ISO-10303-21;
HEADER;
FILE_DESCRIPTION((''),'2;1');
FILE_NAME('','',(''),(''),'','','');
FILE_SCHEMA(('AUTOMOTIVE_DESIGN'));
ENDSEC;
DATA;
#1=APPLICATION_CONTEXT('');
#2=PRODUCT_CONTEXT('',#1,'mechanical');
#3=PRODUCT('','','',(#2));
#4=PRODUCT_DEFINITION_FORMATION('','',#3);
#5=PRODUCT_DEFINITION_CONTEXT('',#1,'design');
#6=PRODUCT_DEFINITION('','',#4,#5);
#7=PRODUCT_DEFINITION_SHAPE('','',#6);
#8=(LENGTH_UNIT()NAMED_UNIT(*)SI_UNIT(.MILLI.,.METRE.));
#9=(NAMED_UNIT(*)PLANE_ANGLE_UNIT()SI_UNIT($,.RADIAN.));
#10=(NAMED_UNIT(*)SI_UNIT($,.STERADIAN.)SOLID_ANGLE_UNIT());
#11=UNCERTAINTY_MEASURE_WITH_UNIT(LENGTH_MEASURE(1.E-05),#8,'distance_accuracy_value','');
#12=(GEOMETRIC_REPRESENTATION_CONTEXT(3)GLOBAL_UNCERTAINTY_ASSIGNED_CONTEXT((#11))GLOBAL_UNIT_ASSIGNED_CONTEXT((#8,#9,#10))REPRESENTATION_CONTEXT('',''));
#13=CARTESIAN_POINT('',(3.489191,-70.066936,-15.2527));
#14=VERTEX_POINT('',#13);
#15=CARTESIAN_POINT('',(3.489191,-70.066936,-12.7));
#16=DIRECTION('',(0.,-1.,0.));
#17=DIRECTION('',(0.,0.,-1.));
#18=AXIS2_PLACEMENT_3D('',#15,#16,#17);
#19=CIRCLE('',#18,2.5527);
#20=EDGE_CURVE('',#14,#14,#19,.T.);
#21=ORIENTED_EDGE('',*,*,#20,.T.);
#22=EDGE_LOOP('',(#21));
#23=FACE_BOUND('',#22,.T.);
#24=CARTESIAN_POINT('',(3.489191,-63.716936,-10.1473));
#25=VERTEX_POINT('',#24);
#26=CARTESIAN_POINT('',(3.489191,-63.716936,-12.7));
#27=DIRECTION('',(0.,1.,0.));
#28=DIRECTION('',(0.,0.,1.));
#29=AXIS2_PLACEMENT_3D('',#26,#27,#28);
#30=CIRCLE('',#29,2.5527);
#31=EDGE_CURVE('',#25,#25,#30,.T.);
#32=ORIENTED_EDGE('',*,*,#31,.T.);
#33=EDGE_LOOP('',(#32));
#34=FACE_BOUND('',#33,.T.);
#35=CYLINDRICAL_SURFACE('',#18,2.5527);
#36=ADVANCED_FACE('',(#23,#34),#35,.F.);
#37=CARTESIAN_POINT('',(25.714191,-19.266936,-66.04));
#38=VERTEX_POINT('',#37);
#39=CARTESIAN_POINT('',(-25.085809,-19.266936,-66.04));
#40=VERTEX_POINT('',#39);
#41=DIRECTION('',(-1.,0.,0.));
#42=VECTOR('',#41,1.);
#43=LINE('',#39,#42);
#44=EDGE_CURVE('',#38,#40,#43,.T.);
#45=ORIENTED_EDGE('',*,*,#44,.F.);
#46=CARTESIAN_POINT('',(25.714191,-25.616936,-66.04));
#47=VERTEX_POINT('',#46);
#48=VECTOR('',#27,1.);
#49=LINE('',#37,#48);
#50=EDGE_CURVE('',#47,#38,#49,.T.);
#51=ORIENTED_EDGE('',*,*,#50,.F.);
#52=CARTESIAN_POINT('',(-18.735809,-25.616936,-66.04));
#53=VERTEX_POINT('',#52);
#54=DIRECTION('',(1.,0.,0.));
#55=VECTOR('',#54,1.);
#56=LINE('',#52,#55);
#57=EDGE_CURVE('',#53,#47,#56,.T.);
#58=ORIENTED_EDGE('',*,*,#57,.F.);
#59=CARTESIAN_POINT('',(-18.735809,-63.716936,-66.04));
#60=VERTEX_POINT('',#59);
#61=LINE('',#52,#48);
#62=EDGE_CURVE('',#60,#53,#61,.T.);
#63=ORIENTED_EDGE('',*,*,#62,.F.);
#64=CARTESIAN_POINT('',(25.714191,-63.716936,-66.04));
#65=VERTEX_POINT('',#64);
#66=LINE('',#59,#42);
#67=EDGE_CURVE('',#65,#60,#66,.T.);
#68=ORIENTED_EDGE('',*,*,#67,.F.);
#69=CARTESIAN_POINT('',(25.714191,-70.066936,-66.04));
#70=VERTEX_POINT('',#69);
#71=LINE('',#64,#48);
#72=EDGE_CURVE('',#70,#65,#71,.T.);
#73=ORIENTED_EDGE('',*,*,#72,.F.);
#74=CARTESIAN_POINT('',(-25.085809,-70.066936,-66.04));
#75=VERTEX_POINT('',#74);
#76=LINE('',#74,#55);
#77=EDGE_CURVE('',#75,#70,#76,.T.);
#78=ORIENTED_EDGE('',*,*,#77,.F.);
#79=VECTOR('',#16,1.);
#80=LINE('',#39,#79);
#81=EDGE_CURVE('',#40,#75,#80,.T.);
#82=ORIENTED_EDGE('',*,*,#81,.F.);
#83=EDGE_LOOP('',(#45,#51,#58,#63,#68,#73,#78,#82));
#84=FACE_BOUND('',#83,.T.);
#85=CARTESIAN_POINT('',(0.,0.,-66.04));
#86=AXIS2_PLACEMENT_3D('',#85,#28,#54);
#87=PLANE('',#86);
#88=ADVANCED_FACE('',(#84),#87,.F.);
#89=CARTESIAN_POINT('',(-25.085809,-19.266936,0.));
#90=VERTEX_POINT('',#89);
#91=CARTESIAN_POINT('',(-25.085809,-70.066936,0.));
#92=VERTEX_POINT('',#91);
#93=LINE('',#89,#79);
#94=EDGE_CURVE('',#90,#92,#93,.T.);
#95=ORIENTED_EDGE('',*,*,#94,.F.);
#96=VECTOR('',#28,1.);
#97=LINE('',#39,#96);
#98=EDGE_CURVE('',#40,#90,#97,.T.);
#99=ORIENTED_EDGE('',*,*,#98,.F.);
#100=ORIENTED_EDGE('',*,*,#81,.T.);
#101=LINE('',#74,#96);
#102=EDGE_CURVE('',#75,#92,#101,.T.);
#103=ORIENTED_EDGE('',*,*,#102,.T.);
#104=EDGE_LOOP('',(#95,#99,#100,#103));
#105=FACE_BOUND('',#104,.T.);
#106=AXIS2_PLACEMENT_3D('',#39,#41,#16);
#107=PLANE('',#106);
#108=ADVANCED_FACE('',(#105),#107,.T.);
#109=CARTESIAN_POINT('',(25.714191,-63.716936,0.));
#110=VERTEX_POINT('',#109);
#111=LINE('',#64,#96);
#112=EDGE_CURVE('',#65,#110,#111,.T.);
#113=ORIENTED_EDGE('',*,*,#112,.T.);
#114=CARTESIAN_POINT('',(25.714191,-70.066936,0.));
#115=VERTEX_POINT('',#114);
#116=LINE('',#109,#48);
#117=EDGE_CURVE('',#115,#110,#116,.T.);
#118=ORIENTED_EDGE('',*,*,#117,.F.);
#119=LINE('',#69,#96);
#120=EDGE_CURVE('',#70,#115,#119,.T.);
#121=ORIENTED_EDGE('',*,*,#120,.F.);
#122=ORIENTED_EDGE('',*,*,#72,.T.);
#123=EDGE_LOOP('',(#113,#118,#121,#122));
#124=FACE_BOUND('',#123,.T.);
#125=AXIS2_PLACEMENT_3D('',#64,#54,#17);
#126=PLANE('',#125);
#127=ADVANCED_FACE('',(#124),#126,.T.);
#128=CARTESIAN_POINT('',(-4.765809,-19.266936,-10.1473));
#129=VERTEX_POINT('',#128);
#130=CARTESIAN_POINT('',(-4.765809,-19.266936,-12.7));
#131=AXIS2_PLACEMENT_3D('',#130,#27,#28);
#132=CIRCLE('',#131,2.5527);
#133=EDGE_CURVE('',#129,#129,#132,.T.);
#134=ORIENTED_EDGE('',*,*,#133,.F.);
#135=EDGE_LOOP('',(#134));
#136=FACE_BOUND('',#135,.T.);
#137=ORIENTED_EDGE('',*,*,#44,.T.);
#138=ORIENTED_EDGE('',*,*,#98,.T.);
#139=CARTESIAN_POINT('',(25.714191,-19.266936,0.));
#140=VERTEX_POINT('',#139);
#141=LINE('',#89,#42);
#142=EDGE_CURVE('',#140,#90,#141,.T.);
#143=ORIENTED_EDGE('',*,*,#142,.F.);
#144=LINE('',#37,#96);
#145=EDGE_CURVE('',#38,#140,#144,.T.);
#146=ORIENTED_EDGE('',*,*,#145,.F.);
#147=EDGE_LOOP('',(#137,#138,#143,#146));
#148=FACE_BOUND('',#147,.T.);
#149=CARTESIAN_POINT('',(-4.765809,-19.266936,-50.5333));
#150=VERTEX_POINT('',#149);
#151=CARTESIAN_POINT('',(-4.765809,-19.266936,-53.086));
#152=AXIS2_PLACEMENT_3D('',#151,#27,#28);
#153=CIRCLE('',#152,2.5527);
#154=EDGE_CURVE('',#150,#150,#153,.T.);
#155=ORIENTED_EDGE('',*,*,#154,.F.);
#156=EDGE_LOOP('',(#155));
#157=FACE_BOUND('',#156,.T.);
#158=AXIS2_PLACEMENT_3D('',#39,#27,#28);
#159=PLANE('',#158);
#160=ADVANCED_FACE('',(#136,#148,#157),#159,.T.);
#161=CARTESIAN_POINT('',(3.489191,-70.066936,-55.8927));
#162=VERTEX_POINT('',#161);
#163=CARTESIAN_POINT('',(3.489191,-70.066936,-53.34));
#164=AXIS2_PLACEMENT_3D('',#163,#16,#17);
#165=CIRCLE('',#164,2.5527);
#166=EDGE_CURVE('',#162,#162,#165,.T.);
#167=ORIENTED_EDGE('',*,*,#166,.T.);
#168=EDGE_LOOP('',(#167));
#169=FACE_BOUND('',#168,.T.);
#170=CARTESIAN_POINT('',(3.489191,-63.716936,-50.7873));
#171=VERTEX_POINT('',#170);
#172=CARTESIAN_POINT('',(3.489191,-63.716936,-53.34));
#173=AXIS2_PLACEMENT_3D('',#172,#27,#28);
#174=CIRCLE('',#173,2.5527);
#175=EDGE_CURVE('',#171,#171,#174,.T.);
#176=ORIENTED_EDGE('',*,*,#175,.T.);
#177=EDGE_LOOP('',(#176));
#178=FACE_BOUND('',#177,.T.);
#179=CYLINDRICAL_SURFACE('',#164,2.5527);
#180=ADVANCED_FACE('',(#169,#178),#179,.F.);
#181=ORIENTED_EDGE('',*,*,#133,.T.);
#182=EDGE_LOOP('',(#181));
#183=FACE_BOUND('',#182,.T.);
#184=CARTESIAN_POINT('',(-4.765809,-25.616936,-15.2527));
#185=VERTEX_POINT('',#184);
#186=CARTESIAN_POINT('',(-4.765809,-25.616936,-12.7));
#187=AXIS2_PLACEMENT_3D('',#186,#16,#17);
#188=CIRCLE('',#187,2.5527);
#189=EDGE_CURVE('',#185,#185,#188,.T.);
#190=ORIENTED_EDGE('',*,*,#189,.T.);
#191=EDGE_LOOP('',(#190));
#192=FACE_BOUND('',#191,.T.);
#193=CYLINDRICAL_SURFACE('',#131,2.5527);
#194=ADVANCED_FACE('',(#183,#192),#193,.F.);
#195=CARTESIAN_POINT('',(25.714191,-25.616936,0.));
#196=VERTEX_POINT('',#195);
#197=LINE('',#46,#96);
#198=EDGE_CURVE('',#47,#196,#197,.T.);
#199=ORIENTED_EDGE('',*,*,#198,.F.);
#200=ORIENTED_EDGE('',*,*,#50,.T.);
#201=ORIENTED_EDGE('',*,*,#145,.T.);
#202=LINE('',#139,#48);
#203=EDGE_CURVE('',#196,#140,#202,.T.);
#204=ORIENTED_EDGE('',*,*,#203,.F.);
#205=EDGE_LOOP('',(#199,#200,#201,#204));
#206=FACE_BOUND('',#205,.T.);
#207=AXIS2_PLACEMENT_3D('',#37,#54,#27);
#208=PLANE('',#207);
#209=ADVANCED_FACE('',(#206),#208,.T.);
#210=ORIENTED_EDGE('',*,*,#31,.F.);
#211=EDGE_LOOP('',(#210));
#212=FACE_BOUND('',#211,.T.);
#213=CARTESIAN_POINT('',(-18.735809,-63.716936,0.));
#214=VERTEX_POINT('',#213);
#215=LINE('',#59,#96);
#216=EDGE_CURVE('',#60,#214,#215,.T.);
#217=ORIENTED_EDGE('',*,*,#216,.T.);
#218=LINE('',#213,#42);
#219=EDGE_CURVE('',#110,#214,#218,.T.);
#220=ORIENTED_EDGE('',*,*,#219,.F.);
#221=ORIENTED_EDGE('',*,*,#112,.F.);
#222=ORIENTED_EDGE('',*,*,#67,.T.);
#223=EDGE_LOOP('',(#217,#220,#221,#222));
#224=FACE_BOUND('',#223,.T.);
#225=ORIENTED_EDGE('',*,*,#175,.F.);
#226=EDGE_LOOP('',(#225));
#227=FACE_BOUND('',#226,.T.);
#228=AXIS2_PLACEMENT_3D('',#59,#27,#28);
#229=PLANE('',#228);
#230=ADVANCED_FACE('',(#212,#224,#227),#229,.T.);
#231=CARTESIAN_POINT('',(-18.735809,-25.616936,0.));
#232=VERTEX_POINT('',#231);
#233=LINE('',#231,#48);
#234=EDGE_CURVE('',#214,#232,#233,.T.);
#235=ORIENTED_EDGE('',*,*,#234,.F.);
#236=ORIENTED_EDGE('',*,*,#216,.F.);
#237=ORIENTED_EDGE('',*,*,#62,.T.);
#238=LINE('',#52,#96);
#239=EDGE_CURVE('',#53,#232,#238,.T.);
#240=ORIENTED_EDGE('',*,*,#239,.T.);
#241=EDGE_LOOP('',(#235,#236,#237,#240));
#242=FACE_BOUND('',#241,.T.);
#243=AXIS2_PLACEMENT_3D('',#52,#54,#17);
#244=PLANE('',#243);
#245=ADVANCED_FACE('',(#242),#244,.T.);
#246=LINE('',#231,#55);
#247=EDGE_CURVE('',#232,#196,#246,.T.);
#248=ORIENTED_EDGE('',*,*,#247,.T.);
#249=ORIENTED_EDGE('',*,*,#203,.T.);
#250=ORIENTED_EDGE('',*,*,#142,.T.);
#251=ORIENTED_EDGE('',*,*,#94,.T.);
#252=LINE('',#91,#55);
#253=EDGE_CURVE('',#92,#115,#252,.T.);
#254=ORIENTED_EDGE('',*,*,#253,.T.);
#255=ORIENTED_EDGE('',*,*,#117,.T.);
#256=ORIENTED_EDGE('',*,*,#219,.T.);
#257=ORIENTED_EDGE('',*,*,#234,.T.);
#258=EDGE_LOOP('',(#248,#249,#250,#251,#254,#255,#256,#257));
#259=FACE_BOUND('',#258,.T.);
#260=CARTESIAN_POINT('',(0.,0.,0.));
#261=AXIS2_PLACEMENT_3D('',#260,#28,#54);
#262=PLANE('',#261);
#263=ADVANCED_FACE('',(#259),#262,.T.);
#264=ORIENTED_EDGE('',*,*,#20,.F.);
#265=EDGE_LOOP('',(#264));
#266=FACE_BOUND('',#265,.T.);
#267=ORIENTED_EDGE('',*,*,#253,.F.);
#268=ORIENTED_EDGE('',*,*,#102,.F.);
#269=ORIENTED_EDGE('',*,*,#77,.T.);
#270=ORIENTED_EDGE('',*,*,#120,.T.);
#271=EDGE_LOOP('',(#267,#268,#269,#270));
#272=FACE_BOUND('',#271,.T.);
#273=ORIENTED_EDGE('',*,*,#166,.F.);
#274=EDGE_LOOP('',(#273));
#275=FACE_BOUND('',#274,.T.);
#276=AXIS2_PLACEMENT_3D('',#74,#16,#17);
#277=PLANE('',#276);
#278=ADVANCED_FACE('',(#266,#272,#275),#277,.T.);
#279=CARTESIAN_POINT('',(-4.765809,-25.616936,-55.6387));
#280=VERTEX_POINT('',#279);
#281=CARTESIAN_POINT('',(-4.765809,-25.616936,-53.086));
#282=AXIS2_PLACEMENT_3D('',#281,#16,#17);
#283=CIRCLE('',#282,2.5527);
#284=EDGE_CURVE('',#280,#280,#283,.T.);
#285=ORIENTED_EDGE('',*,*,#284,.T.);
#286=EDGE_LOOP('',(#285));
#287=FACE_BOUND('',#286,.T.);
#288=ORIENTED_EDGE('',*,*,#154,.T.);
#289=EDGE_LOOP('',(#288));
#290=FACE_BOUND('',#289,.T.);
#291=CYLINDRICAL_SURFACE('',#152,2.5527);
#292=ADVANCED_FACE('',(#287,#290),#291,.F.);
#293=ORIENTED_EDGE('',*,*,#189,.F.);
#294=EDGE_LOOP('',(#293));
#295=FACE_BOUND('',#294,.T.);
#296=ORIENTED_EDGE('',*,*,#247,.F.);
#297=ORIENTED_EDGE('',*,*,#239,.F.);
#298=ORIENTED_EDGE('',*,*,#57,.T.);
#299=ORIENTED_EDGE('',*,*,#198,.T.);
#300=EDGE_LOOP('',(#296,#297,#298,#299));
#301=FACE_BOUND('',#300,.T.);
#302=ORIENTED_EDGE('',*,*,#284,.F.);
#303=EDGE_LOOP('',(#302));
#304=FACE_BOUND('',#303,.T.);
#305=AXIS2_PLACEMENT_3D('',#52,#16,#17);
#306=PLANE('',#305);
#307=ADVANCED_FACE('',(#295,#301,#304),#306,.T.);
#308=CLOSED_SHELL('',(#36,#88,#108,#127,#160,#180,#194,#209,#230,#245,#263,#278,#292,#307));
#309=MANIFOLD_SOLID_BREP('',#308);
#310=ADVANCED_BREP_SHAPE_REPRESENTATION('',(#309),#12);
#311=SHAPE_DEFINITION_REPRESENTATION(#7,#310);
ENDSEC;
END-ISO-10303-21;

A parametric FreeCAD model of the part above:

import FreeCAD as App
import Part
import Sketcher

V = App.Vector
Q = App.Units.Quantity

doc = App.newDocument("Part")
body = doc.addObject("PartDesign::Body", "Body")

# Sketch on XY plane
sketch1 = body.newObject("Sketcher::SketchObject", "Sketch")
sketch1.AttachmentSupport = (doc.getObject("XY_Plane"), [""])
sketch1.MapMode = "FlatFace"
sketch1.addGeometry(Part.LineSegment(V(-18.735809, -25.616936, 0), V(25.714191, -25.616936, 0)), False)
sketch1.addGeometry(Part.LineSegment(V(25.714191, -25.616936, 0), V(25.714191, -19.266936, 0)), False)
sketch1.addGeometry(Part.LineSegment(V(25.714191, -19.266936, 0), V(-25.085809, -19.266936, 0)), False)
sketch1.addGeometry(Part.LineSegment(V(-25.085809, -19.266936, 0), V(-25.085809, -70.066936, 0)), False)
sketch1.addGeometry(Part.LineSegment(V(-25.085809, -70.066936, 0), V(25.714191, -70.066936, 0)), False)
sketch1.addGeometry(Part.LineSegment(V(25.714191, -70.066936, 0), V(25.714191, -63.716936, 0)), False)
sketch1.addGeometry(Part.LineSegment(V(25.714191, -63.716936, 0), V(-18.735809, -63.716936, 0)), False)
sketch1.addGeometry(Part.LineSegment(V(-18.735809, -63.716936, 0), V(-18.735809, -25.616936, 0)), False)
sketch1.addConstraint(Sketcher.Constraint("Coincident", 0, 2, 1, 1))
sketch1.addConstraint(Sketcher.Constraint("Coincident", 1, 2, 2, 1))
sketch1.addConstraint(Sketcher.Constraint("Coincident", 2, 2, 3, 1))
sketch1.addConstraint(Sketcher.Constraint("Coincident", 3, 2, 4, 1))
sketch1.addConstraint(Sketcher.Constraint("Coincident", 4, 2, 5, 1))
sketch1.addConstraint(Sketcher.Constraint("Coincident", 5, 2, 6, 1))
sketch1.addConstraint(Sketcher.Constraint("Coincident", 6, 2, 7, 1))
sketch1.addConstraint(Sketcher.Constraint("Coincident", 7, 2, 0, 1))
sketch1.addConstraint(Sketcher.Constraint("Horizontal", 0))
sketch1.addConstraint(Sketcher.Constraint("Vertical", 1))
sketch1.addConstraint(Sketcher.Constraint("Horizontal", 2))
sketch1.addConstraint(Sketcher.Constraint("Vertical", 3))
sketch1.addConstraint(Sketcher.Constraint("Horizontal", 4))
sketch1.addConstraint(Sketcher.Constraint("Vertical", 5))
sketch1.addConstraint(Sketcher.Constraint("Horizontal", 6))
sketch1.addConstraint(Sketcher.Constraint("Vertical", 7))
sketch1.addConstraint(Sketcher.Constraint("Vertical", 1, 2, 4, 2))
sketch1.addConstraint(Sketcher.Constraint("Equal", 4, 3))
sketch1.addConstraint(Sketcher.Constraint("Equal", 1, 5))
sketch1.addConstraint(Sketcher.Constraint("DistanceX", 2, 2, 2, 1, Q("2 in")))
sketch1.addConstraint(Sketcher.Constraint("DistanceY", 7, 1, 7, 2, Q("1.5 in")))
sketch1.addConstraint(Sketcher.Constraint("DistanceX", 0, 1, 0, 2, Q("1.75 in")))
sketch1.addConstraint(Sketcher.Constraint("DistanceX", -1, 1, 0, 2, Q("25.714191 mm")))
sketch1.addConstraint(Sketcher.Constraint("DistanceY", 0, 2, -1, 1, Q("25.616936 mm")))
pad1 = body.newObject("PartDesign::Pad", "Pad")
pad1.Profile = sketch1
pad1.Length = Q("2.6 in")
pad1.Reversed = True

# Sketch on XZ plane
sketch2 = body.newObject("Sketcher::SketchObject", "Sketch001")
sketch2.AttachmentSupport = (doc.getObject("XZ_Plane"), [""])
sketch2.MapMode = "FlatFace"
sketch2.AttachmentOffset = App.Placement(V(0, 0, 19.266936), App.Rotation())
sketch2.addGeometry(Part.Circle(V(-4.765809, -53.086, 0), V(0, 0, 1), 2.5527), False)
sketch2.addGeometry(Part.Circle(V(-4.765809, -12.7, 0), V(0, 0, 1), 2.5527), False)
sketch2.addConstraint(Sketcher.Constraint("Equal", 0, 1))
sketch2.addConstraint(Sketcher.Constraint("Vertical", 0, 3, 1, 3))
sketch2.addConstraint(Sketcher.Constraint("Diameter", 0, Q("0.201 in")))
sketch2.addConstraint(Sketcher.Constraint("DistanceY", 1, 3, -1, 1, Q("0.5 in")))
sketch2.addConstraint(Sketcher.Constraint("DistanceY", 0, 3, -1, 1, Q("2.09 in")))
sketch2.addConstraint(Sketcher.Constraint("DistanceX", 0, 3, -1, 1, Q("4.765809 mm")))
doc.recompute()
hole = body.newObject("PartDesign::Hole", "Hole")
hole.Profile = sketch2
hole.ThreadType = "None"
hole.Diameter = Q("0.201 in")
hole.DepthType = "Dimension"
hole.Depth = Q("0.25 in")
hole.DrillPoint = "Flat"
hole.Reversed = True

# Sketch on XZ plane
sketch3 = body.newObject("Sketcher::SketchObject", "Sketch002")
sketch3.AttachmentSupport = (doc.getObject("XZ_Plane"), [""])
sketch3.MapMode = "FlatFace"
sketch3.AttachmentOffset = App.Placement(V(0, 0, 70.066936), App.Rotation())
sketch3.addGeometry(Part.Circle(V(3.489191, -12.7, 0), V(0, 0, 1), 2.5527), False)
sketch3.addGeometry(Part.Circle(V(3.489191, -53.34, 0), V(0, 0, 1), 2.5527), False)
sketch3.addConstraint(Sketcher.Constraint("Equal", 0, 1))
sketch3.addConstraint(Sketcher.Constraint("Vertical", 0, 3, 1, 3))
sketch3.addConstraint(Sketcher.Constraint("Diameter", 0, Q("0.201 in")))
sketch3.addConstraint(Sketcher.Constraint("DistanceY", 0, 3, -1, 1, Q("0.5 in")))
sketch3.addConstraint(Sketcher.Constraint("DistanceY", 1, 3, -1, 1, Q("2.1 in")))
sketch3.addConstraint(Sketcher.Constraint("DistanceX", -1, 1, 0, 3, Q("3.489191 mm")))
doc.recompute()
hole2 = body.newObject("PartDesign::Hole", "Hole001")
hole2.Profile = sketch3
hole2.ThreadType = "None"
hole2.Diameter = Q("0.201 in")
hole2.DepthType = "Dimension"
hole2.Depth = Q("0.25 in")
hole2.DrillPoint = "Flat"

doc.recompute()
